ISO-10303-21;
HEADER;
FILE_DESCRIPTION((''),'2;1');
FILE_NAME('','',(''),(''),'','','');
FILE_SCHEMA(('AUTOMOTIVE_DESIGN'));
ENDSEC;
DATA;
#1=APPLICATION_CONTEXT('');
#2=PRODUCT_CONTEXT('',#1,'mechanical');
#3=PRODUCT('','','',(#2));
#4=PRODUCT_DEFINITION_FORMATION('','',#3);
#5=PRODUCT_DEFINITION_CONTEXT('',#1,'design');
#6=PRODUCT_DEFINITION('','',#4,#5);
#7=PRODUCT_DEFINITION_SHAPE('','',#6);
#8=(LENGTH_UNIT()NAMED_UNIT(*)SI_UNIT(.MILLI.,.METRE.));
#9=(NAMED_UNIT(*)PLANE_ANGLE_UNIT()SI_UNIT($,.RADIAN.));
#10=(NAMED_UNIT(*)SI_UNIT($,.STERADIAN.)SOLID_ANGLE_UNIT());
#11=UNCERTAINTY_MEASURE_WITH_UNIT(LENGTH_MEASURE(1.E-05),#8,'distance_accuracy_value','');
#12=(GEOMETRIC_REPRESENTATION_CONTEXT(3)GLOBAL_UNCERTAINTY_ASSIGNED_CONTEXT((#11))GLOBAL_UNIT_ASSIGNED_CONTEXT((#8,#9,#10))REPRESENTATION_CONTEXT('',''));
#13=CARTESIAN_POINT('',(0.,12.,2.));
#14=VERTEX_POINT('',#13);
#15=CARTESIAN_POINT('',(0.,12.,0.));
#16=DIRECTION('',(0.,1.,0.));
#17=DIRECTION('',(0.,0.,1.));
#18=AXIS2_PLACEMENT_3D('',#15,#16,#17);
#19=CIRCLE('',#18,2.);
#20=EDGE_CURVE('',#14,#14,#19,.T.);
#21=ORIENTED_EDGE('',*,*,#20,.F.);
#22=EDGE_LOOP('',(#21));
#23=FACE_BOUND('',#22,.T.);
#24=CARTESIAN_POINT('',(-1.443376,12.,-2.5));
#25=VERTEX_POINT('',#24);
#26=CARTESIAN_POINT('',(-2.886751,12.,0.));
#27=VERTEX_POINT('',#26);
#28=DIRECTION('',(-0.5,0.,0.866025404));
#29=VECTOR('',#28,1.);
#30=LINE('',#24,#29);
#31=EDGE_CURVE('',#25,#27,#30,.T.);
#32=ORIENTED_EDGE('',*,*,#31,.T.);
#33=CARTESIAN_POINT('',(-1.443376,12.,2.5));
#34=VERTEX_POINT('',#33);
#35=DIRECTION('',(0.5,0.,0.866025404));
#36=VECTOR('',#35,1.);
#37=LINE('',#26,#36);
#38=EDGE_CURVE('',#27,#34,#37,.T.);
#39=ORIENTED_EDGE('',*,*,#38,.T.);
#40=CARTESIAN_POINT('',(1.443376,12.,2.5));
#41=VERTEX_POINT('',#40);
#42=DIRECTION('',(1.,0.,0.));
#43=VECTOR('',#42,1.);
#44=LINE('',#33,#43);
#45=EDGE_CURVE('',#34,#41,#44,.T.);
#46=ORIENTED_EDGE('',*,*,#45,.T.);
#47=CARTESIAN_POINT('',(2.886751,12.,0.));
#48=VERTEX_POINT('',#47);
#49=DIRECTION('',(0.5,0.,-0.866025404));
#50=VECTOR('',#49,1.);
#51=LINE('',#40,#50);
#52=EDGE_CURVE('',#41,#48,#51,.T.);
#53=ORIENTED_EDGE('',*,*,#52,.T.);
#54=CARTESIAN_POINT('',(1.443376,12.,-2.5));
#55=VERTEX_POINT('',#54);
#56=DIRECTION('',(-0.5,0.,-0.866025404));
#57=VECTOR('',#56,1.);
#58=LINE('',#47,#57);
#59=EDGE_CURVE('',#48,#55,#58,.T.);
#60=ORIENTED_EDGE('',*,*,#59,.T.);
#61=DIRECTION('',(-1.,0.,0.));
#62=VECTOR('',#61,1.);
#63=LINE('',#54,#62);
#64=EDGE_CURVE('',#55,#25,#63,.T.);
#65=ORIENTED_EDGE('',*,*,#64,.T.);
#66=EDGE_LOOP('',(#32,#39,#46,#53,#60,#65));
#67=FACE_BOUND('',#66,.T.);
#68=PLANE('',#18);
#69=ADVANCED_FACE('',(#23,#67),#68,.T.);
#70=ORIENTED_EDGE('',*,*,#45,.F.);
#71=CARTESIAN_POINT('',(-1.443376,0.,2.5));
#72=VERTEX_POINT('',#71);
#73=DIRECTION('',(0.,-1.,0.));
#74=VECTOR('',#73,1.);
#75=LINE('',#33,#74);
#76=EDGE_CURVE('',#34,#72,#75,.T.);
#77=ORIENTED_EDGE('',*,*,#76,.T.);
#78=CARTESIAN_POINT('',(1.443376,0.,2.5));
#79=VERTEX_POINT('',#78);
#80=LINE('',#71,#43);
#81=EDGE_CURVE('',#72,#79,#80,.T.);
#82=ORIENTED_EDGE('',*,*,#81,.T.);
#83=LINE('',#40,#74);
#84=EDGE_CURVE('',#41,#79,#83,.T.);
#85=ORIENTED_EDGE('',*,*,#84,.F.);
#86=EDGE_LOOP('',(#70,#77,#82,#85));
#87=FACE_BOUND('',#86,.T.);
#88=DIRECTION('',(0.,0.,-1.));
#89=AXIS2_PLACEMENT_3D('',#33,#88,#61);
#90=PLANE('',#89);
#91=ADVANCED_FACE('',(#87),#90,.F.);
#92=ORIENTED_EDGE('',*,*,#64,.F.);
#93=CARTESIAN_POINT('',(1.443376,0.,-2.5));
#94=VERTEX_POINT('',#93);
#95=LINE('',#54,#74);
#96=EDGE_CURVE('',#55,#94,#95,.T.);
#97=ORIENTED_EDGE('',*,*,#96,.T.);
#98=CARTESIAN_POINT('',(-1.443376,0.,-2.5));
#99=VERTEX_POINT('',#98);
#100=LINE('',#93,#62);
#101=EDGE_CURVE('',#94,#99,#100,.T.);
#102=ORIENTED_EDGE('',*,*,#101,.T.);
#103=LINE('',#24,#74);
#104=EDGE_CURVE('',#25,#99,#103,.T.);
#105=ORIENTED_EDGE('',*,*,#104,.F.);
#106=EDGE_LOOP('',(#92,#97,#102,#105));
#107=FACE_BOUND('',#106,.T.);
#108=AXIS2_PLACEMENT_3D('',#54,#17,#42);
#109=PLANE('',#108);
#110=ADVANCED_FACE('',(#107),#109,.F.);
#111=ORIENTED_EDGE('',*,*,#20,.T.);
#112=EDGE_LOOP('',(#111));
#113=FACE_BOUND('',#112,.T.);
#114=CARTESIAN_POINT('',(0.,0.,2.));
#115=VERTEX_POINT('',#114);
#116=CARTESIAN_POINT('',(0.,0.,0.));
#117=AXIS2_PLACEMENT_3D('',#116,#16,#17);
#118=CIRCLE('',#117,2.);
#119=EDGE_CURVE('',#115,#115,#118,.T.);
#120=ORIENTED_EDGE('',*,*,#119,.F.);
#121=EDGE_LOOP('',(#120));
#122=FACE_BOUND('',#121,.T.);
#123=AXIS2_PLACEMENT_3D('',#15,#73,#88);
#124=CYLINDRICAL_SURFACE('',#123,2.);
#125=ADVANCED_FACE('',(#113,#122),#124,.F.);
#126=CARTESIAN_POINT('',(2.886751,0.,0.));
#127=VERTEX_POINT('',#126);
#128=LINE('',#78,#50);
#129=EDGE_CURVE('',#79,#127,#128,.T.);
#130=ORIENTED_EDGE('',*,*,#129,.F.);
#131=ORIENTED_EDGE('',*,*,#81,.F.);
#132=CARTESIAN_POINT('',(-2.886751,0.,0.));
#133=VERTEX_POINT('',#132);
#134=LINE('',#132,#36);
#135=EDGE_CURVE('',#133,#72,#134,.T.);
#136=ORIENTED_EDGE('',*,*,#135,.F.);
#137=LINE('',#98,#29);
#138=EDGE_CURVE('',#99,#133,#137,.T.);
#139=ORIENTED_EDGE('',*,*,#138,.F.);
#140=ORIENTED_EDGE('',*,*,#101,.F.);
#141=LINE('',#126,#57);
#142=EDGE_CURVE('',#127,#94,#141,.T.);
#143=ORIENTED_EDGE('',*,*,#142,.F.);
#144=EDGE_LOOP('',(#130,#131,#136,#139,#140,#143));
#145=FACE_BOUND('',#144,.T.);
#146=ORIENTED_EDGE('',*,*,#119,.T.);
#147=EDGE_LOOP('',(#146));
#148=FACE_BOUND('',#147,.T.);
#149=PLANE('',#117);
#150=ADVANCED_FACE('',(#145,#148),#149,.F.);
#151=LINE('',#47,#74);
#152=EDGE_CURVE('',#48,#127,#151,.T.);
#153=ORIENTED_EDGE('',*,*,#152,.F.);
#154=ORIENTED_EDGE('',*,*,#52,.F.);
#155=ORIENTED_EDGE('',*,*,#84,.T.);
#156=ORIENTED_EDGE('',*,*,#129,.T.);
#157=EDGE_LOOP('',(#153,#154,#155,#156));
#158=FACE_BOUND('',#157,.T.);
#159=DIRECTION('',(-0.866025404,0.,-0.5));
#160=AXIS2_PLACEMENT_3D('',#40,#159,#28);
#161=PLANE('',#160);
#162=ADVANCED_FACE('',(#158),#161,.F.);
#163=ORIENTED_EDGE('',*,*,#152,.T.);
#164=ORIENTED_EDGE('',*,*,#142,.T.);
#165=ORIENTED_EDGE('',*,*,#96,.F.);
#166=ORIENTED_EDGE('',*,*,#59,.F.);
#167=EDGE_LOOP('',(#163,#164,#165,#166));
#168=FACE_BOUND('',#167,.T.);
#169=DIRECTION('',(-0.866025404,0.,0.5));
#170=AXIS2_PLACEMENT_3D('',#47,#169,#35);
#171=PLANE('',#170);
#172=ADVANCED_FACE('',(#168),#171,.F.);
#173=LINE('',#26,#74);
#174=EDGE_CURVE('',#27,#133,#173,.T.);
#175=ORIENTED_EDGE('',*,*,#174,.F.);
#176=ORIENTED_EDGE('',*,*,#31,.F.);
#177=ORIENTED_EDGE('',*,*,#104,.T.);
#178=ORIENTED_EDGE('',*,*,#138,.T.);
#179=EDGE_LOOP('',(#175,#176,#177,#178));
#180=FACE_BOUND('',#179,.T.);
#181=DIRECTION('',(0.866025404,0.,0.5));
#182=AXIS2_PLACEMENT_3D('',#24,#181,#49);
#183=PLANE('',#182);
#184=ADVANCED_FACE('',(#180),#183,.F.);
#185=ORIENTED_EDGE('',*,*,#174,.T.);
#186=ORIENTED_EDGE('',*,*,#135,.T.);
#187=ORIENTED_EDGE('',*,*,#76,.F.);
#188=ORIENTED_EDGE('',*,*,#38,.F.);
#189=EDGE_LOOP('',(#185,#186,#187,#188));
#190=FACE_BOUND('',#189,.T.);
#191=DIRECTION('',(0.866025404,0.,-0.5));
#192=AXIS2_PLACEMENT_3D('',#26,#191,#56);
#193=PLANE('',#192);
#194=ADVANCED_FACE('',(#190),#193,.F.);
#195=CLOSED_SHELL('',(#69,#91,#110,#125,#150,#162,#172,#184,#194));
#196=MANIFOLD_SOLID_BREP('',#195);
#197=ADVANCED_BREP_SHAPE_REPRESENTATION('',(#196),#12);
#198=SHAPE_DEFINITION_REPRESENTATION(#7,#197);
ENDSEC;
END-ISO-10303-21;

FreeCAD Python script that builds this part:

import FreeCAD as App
import Part
import Sketcher
from FreeCAD import Vector
Q = App.Units.Quantity

doc = App.newDocument("Part")
params = doc.addObject("Spreadsheet::Sheet", "Params")
for row, (alias, value) in enumerate([
    ("sketch1_diameter", "4 mm"),
    ("pad1_length", "12 mm"),
], start=1):
    params.set(f"A{row}", alias)
    params.set(f"B{row}", "=" + value)
    params.setAlias(f"B{row}", alias)

body = doc.addObject("PartDesign::Body", "Body")

sketch1 = body.newObject("Sketcher::SketchObject", "Sketch")
sketch1.AttachmentSupport = (doc.getObject("XZ_Plane"), [""])
sketch1.MapMode = "FlatFace"
sketch1.addGeometry([
    Part.LineSegment(Vector(1.4, -2.5, 0), Vector(-1.4, -2.5, 0)),
    Part.LineSegment(Vector(-1.4, -2.5, 0), Vector(-2.9, 0, 0)),
    Part.LineSegment(Vector(-2.9, 0, 0), Vector(-1.4, 2.5, 0)),
    Part.LineSegment(Vector(-1.4, 2.5, 0), Vector(1.4, 2.5, 0)),
    Part.LineSegment(Vector(1.4, 2.5, 0), Vector(2.9, 0, 0)),
    Part.LineSegment(Vector(2.9, 0, 0), Vector(1.4, -2.5, 0)),
    Part.Circle(Vector(0, 0, 0), Vector(0, 0, 1), 2),
], False)
sketch1.addConstraint([
    Sketcher.Constraint("Coincident", 0, 2, 1, 1),
    Sketcher.Constraint("Coincident", 1, 2, 2, 1),
    Sketcher.Constraint("Coincident", 2, 2, 3, 1),
    Sketcher.Constraint("Coincident", 3, 2, 4, 1),
    Sketcher.Constraint("Coincident", 4, 2, 5, 1),
    Sketcher.Constraint("Coincident", 5, 2, 0, 1),
    Sketcher.Constraint("Horizontal", 0),
    Sketcher.Constraint("Horizontal", 3),
    Sketcher.Constraint("Coincident", 6, 3, -1, 1),
    Sketcher.Constraint("Symmetric", 0, 2, 3, 2, -1, 1),
    Sketcher.Constraint("Symmetric", 1, 2, 4, 2, -1, 1),
    Sketcher.Constraint("PointOnObject", 1, 2, -1),
    Sketcher.Constraint("Parallel", 2, 5),
    Sketcher.Constraint("Vertical", 0, 2, 2, 2),
    Sketcher.Constraint("Diameter", 6, 4.0),
    Sketcher.Constraint("Angle", 1, Q("120 deg")),
    Sketcher.Constraint("DistanceY", 0, 2, 2, 2, 5.0),
    Sketcher.Constraint("DistanceX", 0, 2, 0, 1, 2.886751),
])
sketch1.setExpression("Constraints[14]", "Params.sketch1_diameter")
pad1 = body.newObject("PartDesign::Pad", "Pad")
pad1.Profile = sketch1
pad1.setExpression("Length", "Params.pad1_length")
pad1.Reversed = True

doc.recompute()
